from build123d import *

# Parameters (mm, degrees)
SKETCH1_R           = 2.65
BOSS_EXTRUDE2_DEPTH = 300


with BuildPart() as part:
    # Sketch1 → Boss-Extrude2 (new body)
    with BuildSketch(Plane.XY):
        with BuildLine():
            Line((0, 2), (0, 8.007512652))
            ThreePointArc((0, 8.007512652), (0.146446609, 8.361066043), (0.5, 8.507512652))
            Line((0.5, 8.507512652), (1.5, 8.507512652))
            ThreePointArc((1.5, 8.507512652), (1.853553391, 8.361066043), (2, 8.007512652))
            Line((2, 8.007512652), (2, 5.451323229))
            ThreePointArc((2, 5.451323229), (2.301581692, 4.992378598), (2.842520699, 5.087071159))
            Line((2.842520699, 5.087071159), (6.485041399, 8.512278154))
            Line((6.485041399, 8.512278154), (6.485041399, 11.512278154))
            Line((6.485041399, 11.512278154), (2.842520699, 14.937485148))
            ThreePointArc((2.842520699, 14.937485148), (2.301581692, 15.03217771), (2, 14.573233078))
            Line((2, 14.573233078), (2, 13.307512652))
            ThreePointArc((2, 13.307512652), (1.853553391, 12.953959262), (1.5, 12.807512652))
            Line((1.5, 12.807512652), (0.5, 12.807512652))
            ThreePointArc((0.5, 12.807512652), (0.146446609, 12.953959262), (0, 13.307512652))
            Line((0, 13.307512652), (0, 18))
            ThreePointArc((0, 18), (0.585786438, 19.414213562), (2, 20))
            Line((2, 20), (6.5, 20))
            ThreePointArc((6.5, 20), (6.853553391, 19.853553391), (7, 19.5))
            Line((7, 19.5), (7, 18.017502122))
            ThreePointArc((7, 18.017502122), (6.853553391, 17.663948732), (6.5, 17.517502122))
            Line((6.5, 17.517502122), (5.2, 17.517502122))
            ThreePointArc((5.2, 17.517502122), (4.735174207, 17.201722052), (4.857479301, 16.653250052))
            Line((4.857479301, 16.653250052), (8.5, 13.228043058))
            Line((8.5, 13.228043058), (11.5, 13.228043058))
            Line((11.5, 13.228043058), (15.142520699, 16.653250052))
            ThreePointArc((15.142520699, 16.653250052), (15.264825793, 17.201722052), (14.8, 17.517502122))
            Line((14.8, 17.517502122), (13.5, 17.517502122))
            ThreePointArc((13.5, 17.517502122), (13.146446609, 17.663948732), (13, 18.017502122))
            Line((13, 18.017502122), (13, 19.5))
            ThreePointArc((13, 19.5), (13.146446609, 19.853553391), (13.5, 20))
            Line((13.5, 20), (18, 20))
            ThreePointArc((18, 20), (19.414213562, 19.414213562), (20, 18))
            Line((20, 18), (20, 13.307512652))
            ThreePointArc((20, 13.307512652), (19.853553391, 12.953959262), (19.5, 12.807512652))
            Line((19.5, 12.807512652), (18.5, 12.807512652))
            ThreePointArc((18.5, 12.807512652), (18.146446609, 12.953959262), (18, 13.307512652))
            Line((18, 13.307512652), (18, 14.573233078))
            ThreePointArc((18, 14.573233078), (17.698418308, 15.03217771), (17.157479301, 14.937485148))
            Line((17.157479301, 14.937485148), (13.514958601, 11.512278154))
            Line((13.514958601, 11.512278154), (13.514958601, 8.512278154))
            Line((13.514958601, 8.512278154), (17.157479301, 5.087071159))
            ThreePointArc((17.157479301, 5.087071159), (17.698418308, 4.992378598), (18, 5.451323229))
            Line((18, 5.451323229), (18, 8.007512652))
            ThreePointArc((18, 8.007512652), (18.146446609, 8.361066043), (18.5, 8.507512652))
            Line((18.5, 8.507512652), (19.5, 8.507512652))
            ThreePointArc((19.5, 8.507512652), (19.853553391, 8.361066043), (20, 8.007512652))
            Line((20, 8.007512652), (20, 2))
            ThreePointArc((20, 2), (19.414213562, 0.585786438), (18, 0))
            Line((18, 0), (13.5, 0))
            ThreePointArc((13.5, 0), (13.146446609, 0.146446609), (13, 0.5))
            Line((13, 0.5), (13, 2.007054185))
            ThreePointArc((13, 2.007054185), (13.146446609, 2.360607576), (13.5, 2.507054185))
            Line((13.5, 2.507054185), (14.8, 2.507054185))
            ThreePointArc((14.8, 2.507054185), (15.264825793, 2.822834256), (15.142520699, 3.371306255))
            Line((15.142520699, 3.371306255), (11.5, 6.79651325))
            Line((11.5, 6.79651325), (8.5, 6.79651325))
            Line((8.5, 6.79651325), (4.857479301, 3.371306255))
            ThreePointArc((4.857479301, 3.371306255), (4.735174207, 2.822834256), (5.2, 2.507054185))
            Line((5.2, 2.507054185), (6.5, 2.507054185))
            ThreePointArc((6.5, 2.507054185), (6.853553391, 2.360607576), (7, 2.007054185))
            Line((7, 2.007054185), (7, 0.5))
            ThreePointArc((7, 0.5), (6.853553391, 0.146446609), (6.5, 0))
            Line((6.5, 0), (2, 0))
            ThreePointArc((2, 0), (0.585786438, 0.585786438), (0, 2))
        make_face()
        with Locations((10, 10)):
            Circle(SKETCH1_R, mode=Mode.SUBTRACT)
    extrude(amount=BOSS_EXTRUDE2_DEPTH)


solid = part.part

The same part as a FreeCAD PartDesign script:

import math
import FreeCAD as App
import Part
import Sketcher

doc = App.newDocument("Part")
params = doc.addObject("Spreadsheet::Sheet", "Params")
for row, (alias, value) in enumerate([
    ("sketch1_radius", "2 mm"),
    ("sketch1_diameter", "5.3 mm"),
    ("sketch1_radius2", "0.5 mm"),
    ("sketch1_width", "3 mm"),
    ("sketch1_length", "5 mm"),
    ("pad1_length", "300 mm"),
], start=1):
    params.set(f"A{row}", alias)
    params.set(f"B{row}", "=" + value)
    params.setAlias(f"B{row}", alias)

body = doc.addObject("PartDesign::Body", "Body")

sketch1 = body.newObject("Sketcher::SketchObject", "Sketch")
sketch1.AttachmentSupport = (doc.getObject("XY_Plane"), [""])
sketch1.MapMode = "FlatFace"
sketch1.addGeometry([
    Part.LineSegment(App.Vector(0, 8.01, 0), App.Vector(0, 2, 0)),
    Part.ArcOfCircle(Part.Circle(App.Vector(2, 2, 0), App.Vector(0, 0, 1), 2), math.radians(-180), math.radians(-90)),
    Part.LineSegment(App.Vector(2, 0, 0), App.Vector(6.5, 0, 0)),
    Part.ArcOfCircle(Part.Circle(App.Vector(6.5, 0.5, 0), App.Vector(0, 0, 1), 0.5), math.radians(-90), math.radians(0)),
    Part.LineSegment(App.Vector(7, 0.5, 0), App.Vector(7, 2.01, 0)),
    Part.ArcOfCircle(Part.Circle(App.Vector(6.5, 2.01, 0), App.Vector(0, 0, 1), 0.5), math.radians(0), math.radians(90)),
    Part.LineSegment(App.Vector(6.5, 2.51, 0), App.Vector(5.2, 2.51, 0)),
    Part.ArcOfCircle(Part.Circle(App.Vector(5.2, 3.01, 0), App.Vector(0, 0, 1), 0.5), math.radians(133), math.radians(270)),
    Part.LineSegment(App.Vector(4.86, 3.37, 0), App.Vector(8.5, 6.8, 0)),
    Part.LineSegment(App.Vector(8.5, 6.8, 0), App.Vector(11.5, 6.8, 0)),
    Part.LineSegment(App.Vector(11.5, 6.8, 0), App.Vector(15.14, 3.37, 0)),
    Part.ArcOfCircle(Part.Circle(App.Vector(14.8, 3.01, 0), App.Vector(0, 0, 1), 0.5), math.radians(-90), math.radians(47)),
    Part.LineSegment(App.Vector(14.8, 2.51, 0), App.Vector(13.5, 2.51, 0)),
    Part.ArcOfCircle(Part.Circle(App.Vector(13.5, 2.01, 0), App.Vector(0, 0, 1), 0.5), math.radians(90), math.radians(180)),
    Part.LineSegment(App.Vector(13, 2.01, 0), App.Vector(13, 0.5, 0)),
    Part.ArcOfCircle(Part.Circle(App.Vector(13.5, 0.5, 0), App.Vector(0, 0, 1), 0.5), math.radians(180), math.radians(270)),
    Part.LineSegment(App.Vector(13.5, 0, 0), App.Vector(18, 0, 0)),
    Part.ArcOfCircle(Part.Circle(App.Vector(18, 2, 0), App.Vector(0, 0, 1), 2), math.radians(-90), math.radians(0)),
    Part.LineSegment(App.Vector(20, 2, 0), App.Vector(20, 8.01, 0)),
    Part.ArcOfCircle(Part.Circle(App.Vector(19.5, 8.01, 0), App.Vector(0, 0, 1), 0.5), math.radians(0), math.radians(90)),
    Part.LineSegment(App.Vector(19.5, 8.51, 0), App.Vector(18.5, 8.51, 0)),
    Part.ArcOfCircle(Part.Circle(App.Vector(18.5, 8.01, 0), App.Vector(0, 0, 1), 0.5), math.radians(90), math.radians(180)),
    Part.LineSegment(App.Vector(18, 8.01, 0), App.Vector(18, 5.45, 0)),
    Part.ArcOfCircle(Part.Circle(App.Vector(17.5, 5.45, 0), App.Vector(0, 0, 1), 0.5), math.radians(-133), math.radians(0)),
    Part.LineSegment(App.Vector(17.16, 5.09, 0), App.Vector(13.51, 8.51, 0)),
    Part.LineSegment(App.Vector(13.51, 8.51, 0), App.Vector(13.51, 11.51, 0)),
    Part.LineSegment(App.Vector(13.51, 11.51, 0), App.Vector(17.16, 14.94, 0)),
    Part.ArcOfCircle(Part.Circle(App.Vector(17.5, 14.57, 0), App.Vector(0, 0, 1), 0.5), math.radians(0), math.radians(133)),
    Part.LineSegment(App.Vector(18, 14.57, 0), App.Vector(18, 13.31, 0)),
    Part.ArcOfCircle(Part.Circle(App.Vector(18.5, 13.31, 0), App.Vector(0, 0, 1), 0.5), math.radians(180), math.radians(270)),
    Part.LineSegment(App.Vector(18.5, 12.81, 0), App.Vector(19.5, 12.81, 0)),
    Part.ArcOfCircle(Part.Circle(App.Vector(19.5, 13.31, 0), App.Vector(0, 0, 1), 0.5), math.radians(-90), math.radians(0)),
    Part.LineSegment(App.Vector(20, 13.31, 0), App.Vector(20, 18, 0)),
    Part.ArcOfCircle(Part.Circle(App.Vector(18, 18, 0), App.Vector(0, 0, 1), 2), math.radians(0), math.radians(90)),
    Part.LineSegment(App.Vector(18, 20, 0), App.Vector(13.5, 20, 0)),
    Part.ArcOfCircle(Part.Circle(App.Vector(13.5, 19.5, 0), App.Vector(0, 0, 1), 0.5), math.radians(90), math.radians(180)),
    Part.LineSegment(App.Vector(13, 19.5, 0), App.Vector(13, 18.02, 0)),
    Part.ArcOfCircle(Part.Circle(App.Vector(13.5, 18.02, 0), App.Vector(0, 0, 1), 0.5), math.radians(180), math.radians(270)),
    Part.LineSegment(App.Vector(13.5, 17.52, 0), App.Vector(14.8, 17.52, 0)),
    Part.ArcOfCircle(Part.Circle(App.Vector(14.8, 17.02, 0), App.Vector(0, 0, 1), 0.5), math.radians(-47), math.radians(90)),
    Part.LineSegment(App.Vector(15.14, 16.65, 0), App.Vector(11.5, 13.23, 0)),
    Part.LineSegment(App.Vector(11.5, 13.23, 0), App.Vector(8.5, 13.23, 0)),
    Part.LineSegment(App.Vector(8.5, 13.23, 0), App.Vector(4.86, 16.65, 0)),
    Part.ArcOfCircle(Part.Circle(App.Vector(5.2, 17.02, 0), App.Vector(0, 0, 1), 0.5), math.radians(90), math.radians(227)),
    Part.LineSegment(App.Vector(5.2, 17.52, 0), App.Vector(6.5, 17.52, 0)),
    Part.ArcOfCircle(Part.Circle(App.Vector(6.5, 18.02, 0), App.Vector(0, 0, 1), 0.5), math.radians(-90), math.radians(0)),
    Part.LineSegment(App.Vector(7, 18.02, 0), App.Vector(7, 19.5, 0)),
    Part.ArcOfCircle(Part.Circle(App.Vector(6.5, 19.5, 0), App.Vector(0, 0, 1), 0.5), math.radians(0), math.radians(90)),
    Part.LineSegment(App.Vector(6.5, 20, 0), App.Vector(2, 20, 0)),
    Part.ArcOfCircle(Part.Circle(App.Vector(2, 18, 0), App.Vector(0, 0, 1), 2), math.radians(90), math.radians(180)),
    Part.LineSegment(App.Vector(0, 18, 0), App.Vector(0, 13.31, 0)),
    Part.ArcOfCircle(Part.Circle(App.Vector(0.5, 13.31, 0), App.Vector(0, 0, 1), 0.5), math.radians(180), math.radians(270)),
    Part.LineSegment(App.Vector(0.5, 12.81, 0), App.Vector(1.5, 12.81, 0)),
    Part.ArcOfCircle(Part.Circle(App.Vector(1.5, 13.31, 0), App.Vector(0, 0, 1), 0.5), math.radians(-90), math.radians(0)),
    Part.LineSegment(App.Vector(2, 13.31, 0), App.Vector(2, 14.57, 0)),
    Part.ArcOfCircle(Part.Circle(App.Vector(2.5, 14.57, 0), App.Vector(0, 0, 1), 0.5), math.radians(47), math.radians(180)),
    Part.LineSegment(App.Vector(2.84, 14.94, 0), App.Vector(6.49, 11.51, 0)),
    Part.LineSegment(App.Vector(6.49, 11.51, 0), App.Vector(6.49, 8.51, 0)),
    Part.LineSegment(App.Vector(6.49, 8.51, 0), App.Vector(2.84, 5.09, 0)),
    Part.ArcOfCircle(Part.Circle(App.Vector(2.5, 5.45, 0), App.Vector(0, 0, 1), 0.5), math.radians(-180), math.radians(-47)),
    Part.LineSegment(App.Vector(2, 5.45, 0), App.Vector(2, 8.01, 0)),
    Part.ArcOfCircle(Part.Circle(App.Vector(1.5, 8.01, 0), App.Vector(0, 0, 1), 0.5), math.radians(0), math.radians(90)),
    Part.LineSegment(App.Vector(1.5, 8.51, 0), App.Vector(0.5, 8.51, 0)),
    Part.ArcOfCircle(Part.Circle(App.Vector(0.5, 8.01, 0), App.Vector(0, 0, 1), 0.5), math.radians(90), math.radians(180)),
    Part.Circle(App.Vector(10, 10, 0), App.Vector(0, 0, 1), 2.65),
], False)
sketch1.addConstraint([
    Sketcher.Constraint("Tangent", 0, 2, 1, 1),
    Sketcher.Constraint("Tangent", 1, 2, 2, 1),
    Sketcher.Constraint("Tangent", 2, 2, 3, 1),
    Sketcher.Constraint("Tangent", 3, 2, 4, 1),
    Sketcher.Constraint("Tangent", 4, 2, 5, 1),
    Sketcher.Constraint("Tangent", 5, 2, 6, 1),
    Sketcher.Constraint("Tangent", 6, 2, 7, 2),
    Sketcher.Constraint("Tangent", 7, 1, 8, 1),
    Sketcher.Constraint("Coincident", 8, 2, 9, 1),
    Sketcher.Constraint("Coincident", 9, 2, 10, 1),
    Sketcher.Constraint("Tangent", 10, 2, 11, 2),
    Sketcher.Constraint("Tangent", 11, 1, 12, 1),
    Sketcher.Constraint("Tangent", 12, 2, 13, 1),
    Sketcher.Constraint("Tangent", 13, 2, 14, 1),
    Sketcher.Constraint("Tangent", 14, 2, 15, 1),
    Sketcher.Constraint("Tangent", 15, 2, 16, 1),
    Sketcher.Constraint("Tangent", 16, 2, 17, 1),
    Sketcher.Constraint("Tangent", 17, 2, 18, 1),
    Sketcher.Constraint("Tangent", 18, 2, 19, 1),
    Sketcher.Constraint("Tangent", 19, 2, 20, 1),
    Sketcher.Constraint("Tangent", 20, 2, 21, 1),
    Sketcher.Constraint("Tangent", 21, 2, 22, 1),
    Sketcher.Constraint("Tangent", 22, 2, 23, 2),
    Sketcher.Constraint("Tangent", 23, 1, 24, 1),
    Sketcher.Constraint("Coincident", 24, 2, 25, 1),
    Sketcher.Constraint("Coincident", 25, 2, 26, 1),
    Sketcher.Constraint("Tangent", 26, 2, 27, 2),
    Sketcher.Constraint("Tangent", 27, 1, 28, 1),
    Sketcher.Constraint("Tangent", 28, 2, 29, 1),
    Sketcher.Constraint("Tangent", 29, 2, 30, 1),
    Sketcher.Constraint("Tangent", 30, 2, 31, 1),
    Sketcher.Constraint("Tangent", 31, 2, 32, 1),
    Sketcher.Constraint("Tangent", 32, 2, 33, 1),
    Sketcher.Constraint("Tangent", 33, 2, 34, 1),
    Sketcher.Constraint("Tangent", 34, 2, 35, 1),
    Sketcher.Constraint("Tangent", 35, 2, 36, 1),
    Sketcher.Constraint("Tangent", 36, 2, 37, 1),
    Sketcher.Constraint("Tangent", 37, 2, 38, 1),
    Sketcher.Constraint("Tangent", 38, 2, 39, 2),
    Sketcher.Constraint("Tangent", 39, 1, 40, 1),
    Sketcher.Constraint("Coincident", 40, 2, 41, 1),
    Sketcher.Constraint("Coincident", 41, 2, 42, 1),
    Sketcher.Constraint("Tangent", 42, 2, 43, 2),
    Sketcher.Constraint("Tangent", 43, 1, 44, 1),
    Sketcher.Constraint("Tangent", 44, 2, 45, 1),
    Sketcher.Constraint("Tangent", 45, 2, 46, 1),
    Sketcher.Constraint("Tangent", 46, 2, 47, 1),
    Sketcher.Constraint("Tangent", 47, 2, 48, 1),
    Sketcher.Constraint("Tangent", 48, 2, 49, 1),
    Sketcher.Constraint("Tangent", 49, 2, 50, 1),
    Sketcher.Constraint("Tangent", 50, 2, 51, 1),
    Sketcher.Constraint("Tangent", 51, 2, 52, 1),
    Sketcher.Constraint("Tangent", 52, 2, 53, 1),
    Sketcher.Constraint("Tangent", 53, 2, 54, 1),
    Sketcher.Constraint("Tangent", 54, 2, 55, 2),
    Sketcher.Constraint("Tangent", 55, 1, 56, 1),
    Sketcher.Constraint("Coincident", 56, 2, 57, 1),
    Sketcher.Constraint("Coincident", 57, 2, 58, 1),
    Sketcher.Constraint("Tangent", 58, 2, 59, 2),
    Sketcher.Constraint("Tangent", 59, 1, 60, 1),
    Sketcher.Constraint("Tangent", 60, 2, 61, 1),
    Sketcher.Constraint("Tangent", 61, 2, 62, 1),
    Sketcher.Constraint("Tangent", 62, 2, 63, 1),
    Sketcher.Constraint("Tangent", 63, 2, 0, 1),
    Sketcher.Constraint("Vertical", 0),
    Sketcher.Constraint("Horizontal", 2),
    Sketcher.Constraint("Vertical", 4),
    Sketcher.Constraint("Horizontal", 6),
    Sketcher.Constraint("Horizontal", 9),
    Sketcher.Constraint("Horizontal", 12),
    Sketcher.Constraint("Vertical", 14),
    Sketcher.Constraint("Horizontal", 16),
    Sketcher.Constraint("Vertical", 18),
    Sketcher.Constraint("Horizontal", 20),
    Sketcher.Constraint("Vertical", 22),
    Sketcher.Constraint("Vertical", 25),
    Sketcher.Constraint("Vertical", 28),
    Sketcher.Constraint("Horizontal", 30),
    Sketcher.Constraint("Vertical", 32),
    Sketcher.Constraint("Horizontal", 34),
    Sketcher.Constraint("Vertical", 36),
    Sketcher.Constraint("Horizontal", 38),
    Sketcher.Constraint("Horizontal", 41),
    Sketcher.Constraint("Horizontal", 44),
    Sketcher.Constraint("Vertical", 46),
    Sketcher.Constraint("Horizontal", 48),
    Sketcher.Constraint("Vertical", 50),
    Sketcher.Constraint("Horizontal", 52),
    Sketcher.Constraint("Vertical", 54),
    Sketcher.Constraint("Vertical", 57),
    Sketcher.Constraint("Vertical", 60),
    Sketcher.Constraint("Horizontal", 62),
    Sketcher.Constraint("Equal", 3, 5),
    Sketcher.Constraint("Equal", 5, 7),
    Sketcher.Constraint("Equal", 7, 11),
    Sketcher.Constraint("Equal", 11, 13),
    Sketcher.Constraint("Equal", 13, 15),
    Sketcher.Constraint("Equal", 1, 17),
    Sketcher.Constraint("Equal", 15, 19),
    Sketcher.Constraint("Equal", 19, 21),
    Sketcher.Constraint("Equal", 21, 23),
    Sketcher.Constraint("Equal", 23, 27),
    Sketcher.Constraint("Equal", 27, 29),
    Sketcher.Constraint("Equal", 29, 31),
    Sketcher.Constraint("Equal", 17, 33),
    Sketcher.Constraint("Equal", 31, 35),
    Sketcher.Constraint("Equal", 35, 37),
    Sketcher.Constraint("Equal", 37, 39),
    Sketcher.Constraint("Equal", 39, 43),
    Sketcher.Constraint("Equal", 43, 45),
    Sketcher.Constraint("Equal", 45, 47),
    Sketcher.Constraint("Equal", 33, 49),
    Sketcher.Constraint("Equal", 47, 51),
    Sketcher.Constraint("Equal", 51, 53),
    Sketcher.Constraint("Equal", 53, 55),
    Sketcher.Constraint("Equal", 55, 59),
    Sketcher.Constraint("Equal", 59, 61),
    Sketcher.Constraint("Equal", 61, 63),
    Sketcher.Constraint("PointOnObject", 0, 2, -2),
    Sketcher.Constraint("PointOnObject", 1, 2, -1),
    Sketcher.Constraint("PointOnObject", 15, 2, -1),
    Sketcher.Constraint("PointOnObject", 49, 2, -2),
    Sketcher.Constraint("Parallel", 10, 24),
    Sketcher.Constraint("Parallel", 8, 26),
    Sketcher.Constraint("Parallel", 26, 40),
    Sketcher.Constraint("Parallel", 24, 42),
    Sketcher.Constraint("Parallel", 42, 56),
    Sketcher.Constraint("Parallel", 40, 58),
    Sketcher.Constraint("Horizontal", 7, 3, 11, 3),
    Sketcher.Constraint("Horizontal", 39, 3, 43, 3),
    Sketcher.Constraint("Horizontal", 35, 3, 47, 3),
    Sketcher.Constraint("Horizontal", 31, 3, 51, 3),
    Sketcher.Constraint("Horizontal", 27, 3, 55, 3),
    Sketcher.Constraint("Horizontal", 23, 3, 59, 3),
    Sketcher.Constraint("Horizontal", 21, 3, 61, 3),
    Sketcher.Constraint("Horizontal", 7, 1, 10, 2),
    Sketcher.Constraint("Horizontal", 25, 2, 56, 2),
    Sketcher.Constraint("Horizontal", 24, 2, 57, 2),
    Sketcher.Constraint("Vertical", 23, 3, 27, 3),
    Sketcher.Constraint("Vertical", 19, 3, 31, 3),
    Sketcher.Constraint("Vertical", 15, 3, 35, 3),
    Sketcher.Constraint("Vertical", 11, 3, 39, 3),
    Sketcher.Constraint("Vertical", 7, 3, 43, 3),
    Sketcher.Constraint("Vertical", 5, 3, 45, 3),
    Sketcher.Constraint("Vertical", 16, 2, 21, 2),
    Sketcher.Constraint("Vertical", 9, 2, 40, 2),
    Sketcher.Constraint("Vertical", 48, 2, 53, 2),
    Sketcher.Constraint("Equal", 6, 12),
    Sketcher.Constraint("Equal", 2, 16),
    Sketcher.Constraint("Equal", 41, 25),
    Sketcher.Constraint("Equal", 10, 24),
    Sketcher.Constraint("Radius", 1, 2.0),
    Sketcher.Constraint("Diameter", 64, 5.3),
    Sketcher.Constraint("Radius", 3, 0.5),
    Sketcher.Constraint("DistanceX", 9, 1, 9, 2, 3.0),
    Sketcher.Constraint("Distance", 8, 5.0),
    Sketcher.Constraint("DistanceX", 2, 1, 2, 2, 4.5),
    Sketcher.Constraint("DistanceX", 6, 2, 6, 1, 1.3),
    Sketcher.Constraint("DistanceX", -1, 1, 17, 3, 18.0),
    Sketcher.Constraint("DistanceY", -1, 1, 33, 3, 18.0),
    Sketcher.Constraint("DistanceX", -1, 1, 64, 3, 10.0),
    Sketcher.Constraint("DistanceY", -1, 1, 64, 3, 10.0),
    Sketcher.Constraint("DistanceY", 22, 2, 22, 1, 2.556189),
    Sketcher.Constraint("DistanceY", 28, 2, 28, 1, 1.26572),
    Sketcher.Constraint("DistanceY", 0, 2, 0, 1, 6.007513),
    Sketcher.Constraint("DistanceY", 4, 1, 4, 2, 1.507054),
    Sketcher.Constraint("DistanceY", 36, 2, 36, 1, 1.482498),
])
sketch1.setExpression("Constraints[151]", "Params.sketch1_radius")
sketch1.setExpression("Constraints[152]", "Params.sketch1_diameter")
sketch1.setExpression("Constraints[153]", "Params.sketch1_radius2")
sketch1.setExpression("Constraints[154]", "Params.sketch1_width")
sketch1.setExpression("Constraints[155]", "Params.sketch1_length")
pad1 = body.newObject("PartDesign::Pad", "Pad")
pad1.Profile = sketch1
pad1.setExpression("Length", "Params.pad1_length")

doc.recompute()
